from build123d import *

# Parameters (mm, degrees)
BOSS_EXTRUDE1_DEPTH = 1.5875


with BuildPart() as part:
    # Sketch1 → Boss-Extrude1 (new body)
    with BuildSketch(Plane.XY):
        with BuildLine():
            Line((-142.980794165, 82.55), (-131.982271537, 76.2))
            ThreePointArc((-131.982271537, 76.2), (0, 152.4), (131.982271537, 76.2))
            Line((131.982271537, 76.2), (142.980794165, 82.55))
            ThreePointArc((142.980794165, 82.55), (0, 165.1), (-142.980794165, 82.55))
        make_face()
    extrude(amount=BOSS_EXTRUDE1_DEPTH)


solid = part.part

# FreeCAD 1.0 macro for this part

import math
import FreeCAD as App
import Part
import Sketcher
from FreeCAD import Vector
Q = App.Units.Quantity

doc = App.newDocument("Part")
params = doc.addObject("Spreadsheet::Sheet", "Params")
for row, (alias, value) in enumerate([
    ("sketch1_radius", "6 in"),
    ("sketch1_radius2", "6.5 in"),
    ("pad1_length", "0.0625 in"),
], start=1):
    params.set(f"A{row}", alias)
    params.set(f"B{row}", "=" + value)
    params.setAlias(f"B{row}", alias)

body = doc.addObject("PartDesign::Body", "Body")

# Sketch on XY plane
sketch1 = body.newObject("Sketcher::SketchObject", "Sketch")
sketch1.AttachmentSupport = (doc.getObject("XY_Plane"), [""])
sketch1.MapMode = "FlatFace"
sketch1.addGeometry(Part.LineSegment(Vector(-143, 83, 0), Vector(-132, 76, 0)), False)
sketch1.addGeometry(Part.ArcOfCircle(Part.Circle(Vector(0, 0, 0), Vector(0, 0, 1), 152), math.radians(30), math.radians(150)), False)
sketch1.addGeometry(Part.LineSegment(Vector(132, 76, 0), Vector(143, 83, 0)), False)
sketch1.addGeometry(Part.ArcOfCircle(Part.Circle(Vector(0, 0, 0), Vector(0, 0, 1), 165), math.radians(30), math.radians(150)), False)
sketch1.addConstraint(Sketcher.Constraint("Coincident", 0, 2, 1, 2))
sketch1.addConstraint(Sketcher.Constraint("Coincident", 1, 1, 2, 1))
sketch1.addConstraint(Sketcher.Constraint("Coincident", 2, 2, 3, 1))
sketch1.addConstraint(Sketcher.Constraint("Coincident", 3, 2, 0, 1))
sketch1.addConstraint(Sketcher.Constraint("Coincident", 1, 3, -1, 1))
sketch1.addConstraint(Sketcher.Constraint("Coincident", 3, 3, -1, 1))
sketch1.addConstraint(Sketcher.Constraint("Horizontal", 0, 2, 1, 1))
sketch1.addConstraint(Sketcher.Constraint("Horizontal", 2, 2, 3, 2))
sketch1.addConstraint(Sketcher.Constraint("Radius", 1, Q("6 in")))
sketch1.addConstraint(Sketcher.Constraint("Radius", 3, Q("6.5 in")))
sketch1.addConstraint(Sketcher.Constraint("DistanceY", -1, 1, 0, 2, Q("3 in")))
sketch1.addConstraint(Sketcher.Constraint("Angle", 0, Q("-30 deg")))
sketch1.setExpression("Constraints[8]", "Params.sketch1_radius")
sketch1.setExpression("Constraints[9]", "Params.sketch1_radius2")
pad1 = body.newObject("PartDesign::Pad", "Pad")
pad1.Profile = sketch1
pad1.setExpression("Length", "Params.pad1_length")

doc.recompute()
